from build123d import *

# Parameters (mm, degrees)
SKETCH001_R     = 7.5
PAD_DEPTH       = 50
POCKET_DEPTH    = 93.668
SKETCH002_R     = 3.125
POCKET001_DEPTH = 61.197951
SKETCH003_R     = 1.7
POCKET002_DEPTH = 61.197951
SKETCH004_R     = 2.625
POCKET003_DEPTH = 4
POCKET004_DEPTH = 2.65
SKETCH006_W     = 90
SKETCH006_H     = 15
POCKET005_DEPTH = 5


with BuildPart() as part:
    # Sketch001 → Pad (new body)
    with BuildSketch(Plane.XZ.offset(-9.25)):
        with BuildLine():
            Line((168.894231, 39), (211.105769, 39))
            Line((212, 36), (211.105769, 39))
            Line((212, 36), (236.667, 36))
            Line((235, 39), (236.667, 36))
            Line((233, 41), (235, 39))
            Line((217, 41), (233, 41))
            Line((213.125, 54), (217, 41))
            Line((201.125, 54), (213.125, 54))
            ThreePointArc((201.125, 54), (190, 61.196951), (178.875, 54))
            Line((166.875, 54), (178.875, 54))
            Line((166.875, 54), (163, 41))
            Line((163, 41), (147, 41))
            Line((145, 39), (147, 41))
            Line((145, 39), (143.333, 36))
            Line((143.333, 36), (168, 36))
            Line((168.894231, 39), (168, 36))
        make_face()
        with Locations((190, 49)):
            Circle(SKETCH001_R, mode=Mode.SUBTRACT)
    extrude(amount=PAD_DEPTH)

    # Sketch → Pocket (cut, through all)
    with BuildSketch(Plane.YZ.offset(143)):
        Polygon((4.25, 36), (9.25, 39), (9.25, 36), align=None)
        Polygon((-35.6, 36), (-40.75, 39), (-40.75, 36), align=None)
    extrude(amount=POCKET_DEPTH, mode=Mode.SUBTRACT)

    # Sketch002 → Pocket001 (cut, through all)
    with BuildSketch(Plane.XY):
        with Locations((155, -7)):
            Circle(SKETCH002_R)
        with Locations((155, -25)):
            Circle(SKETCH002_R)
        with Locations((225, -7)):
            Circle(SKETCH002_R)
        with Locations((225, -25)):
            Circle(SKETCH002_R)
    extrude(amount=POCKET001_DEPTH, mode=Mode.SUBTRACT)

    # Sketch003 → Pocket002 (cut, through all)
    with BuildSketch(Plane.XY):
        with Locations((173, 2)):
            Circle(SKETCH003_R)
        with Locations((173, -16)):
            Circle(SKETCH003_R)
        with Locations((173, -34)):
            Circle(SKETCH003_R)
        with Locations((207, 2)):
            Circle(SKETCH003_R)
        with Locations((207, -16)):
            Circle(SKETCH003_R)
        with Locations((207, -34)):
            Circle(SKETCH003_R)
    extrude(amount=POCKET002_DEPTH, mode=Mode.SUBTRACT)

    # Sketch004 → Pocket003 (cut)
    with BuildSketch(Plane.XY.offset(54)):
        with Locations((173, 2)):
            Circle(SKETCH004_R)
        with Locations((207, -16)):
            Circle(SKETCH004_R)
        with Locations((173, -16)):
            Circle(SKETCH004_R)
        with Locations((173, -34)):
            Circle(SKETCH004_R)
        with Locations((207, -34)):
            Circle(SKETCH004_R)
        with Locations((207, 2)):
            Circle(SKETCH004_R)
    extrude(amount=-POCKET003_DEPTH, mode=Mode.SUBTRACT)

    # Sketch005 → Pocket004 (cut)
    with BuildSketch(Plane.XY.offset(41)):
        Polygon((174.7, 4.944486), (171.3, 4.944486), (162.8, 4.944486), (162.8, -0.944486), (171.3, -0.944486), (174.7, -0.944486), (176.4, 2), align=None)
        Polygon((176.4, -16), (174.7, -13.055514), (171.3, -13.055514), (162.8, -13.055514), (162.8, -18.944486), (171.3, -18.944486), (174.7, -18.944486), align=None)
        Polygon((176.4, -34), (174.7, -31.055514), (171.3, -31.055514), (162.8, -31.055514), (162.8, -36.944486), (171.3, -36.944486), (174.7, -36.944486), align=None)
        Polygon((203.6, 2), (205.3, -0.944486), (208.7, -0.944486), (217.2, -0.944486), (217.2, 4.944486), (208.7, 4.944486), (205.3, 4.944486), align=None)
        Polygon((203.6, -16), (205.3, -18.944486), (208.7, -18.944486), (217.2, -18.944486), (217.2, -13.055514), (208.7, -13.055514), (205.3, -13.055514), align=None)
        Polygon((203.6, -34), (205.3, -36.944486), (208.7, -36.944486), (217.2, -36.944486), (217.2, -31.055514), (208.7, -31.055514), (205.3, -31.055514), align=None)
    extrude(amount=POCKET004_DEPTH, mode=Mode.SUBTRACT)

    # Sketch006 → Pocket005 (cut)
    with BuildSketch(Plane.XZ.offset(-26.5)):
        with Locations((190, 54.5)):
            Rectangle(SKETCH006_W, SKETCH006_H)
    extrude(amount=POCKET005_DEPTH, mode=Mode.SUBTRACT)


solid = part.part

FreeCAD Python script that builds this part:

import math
import FreeCAD as App
import Part
import Sketcher

V = App.Vector
Q = App.Units.Quantity


def add_polygon(sketch, points):
    """Adds a closed chain of lines whose ends are joined by coincident constraints."""
    first, n = sketch.GeometryCount, len(points)
    for a, b in zip(points, points[1:] + points[:1]):
        sketch.addGeometry(Part.LineSegment(App.Vector(*a, 0), App.Vector(*b, 0)), False)
    for i in range(n):
        sketch.addConstraint(Sketcher.Constraint("Coincident", first + i, 2, first + (i + 1) % n, 1))

doc = App.newDocument("Part")
body = doc.addObject("PartDesign::Body", "Body")

# Sketch on XZ plane
sketch1 = body.newObject("Sketcher::SketchObject", "Sketch")
sketch1.AttachmentSupport = (doc.getObject("XZ_Plane"), [""])
sketch1.MapMode = "FlatFace"
sketch1.AttachmentOffset = App.Placement(V(0, 0, -9.25), App.Rotation())
sketch1.addGeometry([
    Part.LineSegment(V(168.9, 39, 0), V(211.1, 39, 0)),  # 0
    Part.LineSegment(V(211.1, 39, 0), V(212, 36, 0)),  # 1
    Part.LineSegment(V(212, 36, 0), V(236.7, 36, 0)),  # 2
    Part.LineSegment(V(236.7, 36, 0), V(235, 39, 0)),  # 3
    Part.LineSegment(V(235, 39, 0), V(233, 41, 0)),  # 4
    Part.LineSegment(V(233, 41, 0), V(217, 41, 0)),  # 5
    Part.LineSegment(V(217, 41, 0), V(213.1, 54, 0)),  # 6
    Part.LineSegment(V(213.1, 54, 0), V(201.1, 54, 0)),  # 7
    Part.ArcOfCircle(Part.Circle(V(190, 49, 0), V(0, 0, 1), 12.2), math.radians(24), math.radians(156)),  # 8
    Part.LineSegment(V(178.9, 54, 0), V(166.9, 54, 0)),  # 9
    Part.LineSegment(V(166.9, 54, 0), V(163, 41, 0)),  # 10
    Part.LineSegment(V(163, 41, 0), V(147, 41, 0)),  # 11
    Part.LineSegment(V(147, 41, 0), V(145, 39, 0)),  # 12
    Part.LineSegment(V(145, 39, 0), V(143.3, 36, 0)),  # 13
    Part.LineSegment(V(143.3, 36, 0), V(168, 36, 0)),  # 14
    Part.LineSegment(V(168, 36, 0), V(168.9, 39, 0)),  # 15
    Part.Circle(V(190, 49, 0), V(0, 0, 1), 7.5),  # 16
], False)
sketch1.addConstraint([
    Sketcher.Constraint("Coincident", 0, 2, 1, 1),
    Sketcher.Constraint("Coincident", 1, 2, 2, 1),
    Sketcher.Constraint("Coincident", 2, 2, 3, 1),
    Sketcher.Constraint("Coincident", 3, 2, 4, 1),
    Sketcher.Constraint("Coincident", 4, 2, 5, 1),
    Sketcher.Constraint("Coincident", 5, 2, 6, 1),
    Sketcher.Constraint("Coincident", 6, 2, 7, 1),
    Sketcher.Constraint("Coincident", 7, 2, 8, 1),
    Sketcher.Constraint("Coincident", 8, 2, 9, 1),
    Sketcher.Constraint("Coincident", 9, 2, 10, 1),
    Sketcher.Constraint("Coincident", 10, 2, 11, 1),
    Sketcher.Constraint("Coincident", 11, 2, 12, 1),
    Sketcher.Constraint("Coincident", 12, 2, 13, 1),
    Sketcher.Constraint("Coincident", 13, 2, 14, 1),
    Sketcher.Constraint("Coincident", 14, 2, 15, 1),
    Sketcher.Constraint("Coincident", 15, 2, 0, 1),
    Sketcher.Constraint("Horizontal", 0),
    Sketcher.Constraint("Horizontal", 2),
    Sketcher.Constraint("Horizontal", 5),
    Sketcher.Constraint("Horizontal", 7),
    Sketcher.Constraint("Horizontal", 9),
    Sketcher.Constraint("Horizontal", 11),
    Sketcher.Constraint("Horizontal", 14),
    Sketcher.Constraint("Coincident", 16, 3, 8, 3),
    Sketcher.Constraint("Parallel", 1, 6),
    Sketcher.Constraint("Perpendicular", 4, 12),
    Sketcher.Constraint("Parallel", 10, 15),
    Sketcher.Constraint("Horizontal", 0, 2, 3, 2),
    Sketcher.Constraint("Horizontal", 7, 2, 8, 2),
    Sketcher.Constraint("Horizontal", 5, 2, 10, 2),
    Sketcher.Constraint("Horizontal", 3, 2, 12, 2),
    Sketcher.Constraint("Horizontal", 2, 2, 13, 2),
    Sketcher.Constraint("Equal", 7, 9),
    Sketcher.Constraint("Equal", 5, 11),
    Sketcher.Constraint("Equal", 2, 14),
    Sketcher.Constraint("Equal", 6, 10),
    Sketcher.Constraint("Equal", 4, 12),
    Sketcher.Constraint("Equal", 3, 13),
    Sketcher.Constraint("Diameter", 16, Q("15 mm")),
    Sketcher.Constraint("DistanceX", 5, 2, 5, 1, Q("16 mm")),
    Sketcher.Constraint("DistanceX", 7, 2, 7, 1, Q("12 mm")),
    Sketcher.Constraint("DistanceX", -1, 1, 8, 3, Q("190 mm")),
    Sketcher.Constraint("DistanceY", -1, 1, 8, 3, Q("48.999999 mm")),
    Sketcher.Constraint("DistanceY", -1, 1, 0, 2, Q("39 mm")),
    Sketcher.Constraint("DistanceX", -1, 1, 1, 2, Q("212 mm")),
    Sketcher.Constraint("DistanceY", -1, 1, 1, 2, Q("36 mm")),
    Sketcher.Constraint("DistanceX", -1, 1, 3, 2, Q("235 mm")),
    Sketcher.Constraint("DistanceX", -1, 1, 4, 2, Q("233 mm")),
    Sketcher.Constraint("DistanceY", -1, 1, 6, 2, Q("54 mm")),
    Sketcher.Constraint("DistanceX", 2, 1, 2, 2, Q("24.667 mm")),
    Sketcher.Constraint("Radius", 8, Q("12.196952 mm")),
])
pad1 = body.newObject("PartDesign::Pad", "Pad")
pad1.Profile = sketch1
pad1.Length = 50

# Sketch on YZ plane
sketch2 = body.newObject("Sketcher::SketchObject", "Sketch001")
sketch2.AttachmentSupport = (doc.getObject("YZ_Plane"), [""])
sketch2.MapMode = "FlatFace"
sketch2.AttachmentOffset = App.Placement(V(0, 0, 143), App.Rotation())
add_polygon(sketch2, [(9.2, 39), (4.2, 36), (9.2, 36)])  # lines 0-2
add_polygon(sketch2, [(-35.6, 36), (-40.8, 39), (-40.8, 36)])  # lines 3-5
sketch2.addConstraint([
    Sketcher.Constraint("Horizontal", 1),
    Sketcher.Constraint("Vertical", 2),
    Sketcher.Constraint("Vertical", 4),
    Sketcher.Constraint("Horizontal", 5),
    Sketcher.Constraint("Horizontal", 2, 2, 3, 2),
    Sketcher.Constraint("Horizontal", 1, 2, 4, 2),
    Sketcher.Constraint("DistanceX", 1, 1, 1, 2, Q("5 mm")),
    Sketcher.Constraint("DistanceY", 2, 1, 2, 2, Q("3 mm")),
    Sketcher.Constraint("DistanceY", -1, 1, 0, 2, Q("36 mm")),
    Sketcher.Constraint("DistanceX", 3, 2, 0, 2, Q("45 mm")),
    Sketcher.Constraint("DistanceX", 5, 1, 5, 2, Q("5.15 mm")),
    Sketcher.Constraint("DistanceX", 5, 2, -1, 1, Q("35.6 mm")),
])
pocket1 = body.newObject("PartDesign::Pocket", "Pocket")
pocket1.Profile = sketch2
pocket1.Type = "ThroughAll"
pocket1.Reversed = True

# Sketch on XY plane
sketch3 = body.newObject("Sketcher::SketchObject", "Sketch002")
sketch3.AttachmentSupport = (doc.getObject("XY_Plane"), [""])
sketch3.MapMode = "FlatFace"
sketch3.addGeometry([
    Part.Circle(V(155, -7, 0), V(0, 0, 1), 3.1),
    Part.Circle(V(155, -25, 0), V(0, 0, 1), 3.1),
    Part.Circle(V(225, -7, 0), V(0, 0, 1), 3.1),
    Part.Circle(V(225, -25, 0), V(0, 0, 1), 3.1),
], False)
sketch3.addConstraint([
    Sketcher.Constraint("Equal", 0, 1),
    Sketcher.Constraint("Equal", 1, 2),
    Sketcher.Constraint("Equal", 2, 3),
    Sketcher.Constraint("Horizontal", 0, 3, 2, 3),
    Sketcher.Constraint("Horizontal", 1, 3, 3, 3),
    Sketcher.Constraint("Vertical", 0, 3, 1, 3),
    Sketcher.Constraint("Vertical", 2, 3, 3, 3),
    Sketcher.Constraint("Diameter", 0, Q("6.25 mm")),
    Sketcher.Constraint("DistanceX", -1, 1, 0, 3, Q("155 mm")),
    Sketcher.Constraint("DistanceY", 0, 3, -1, 1, Q("7 mm")),
    Sketcher.Constraint("DistanceY", 1, 3, -1, 1, Q("25 mm")),
    Sketcher.Constraint("DistanceX", -1, 1, 2, 3, Q("225 mm")),
])
pocket2 = body.newObject("PartDesign::Pocket", "Pocket001")
pocket2.Profile = sketch3
pocket2.Type = "ThroughAll"
pocket2.Reversed = True

# Sketch on XY plane
sketch4 = body.newObject("Sketcher::SketchObject", "Sketch003")
sketch4.AttachmentSupport = (doc.getObject("XY_Plane"), [""])
sketch4.MapMode = "FlatFace"
sketch4.addGeometry([
    Part.Circle(V(173, 2, 0), V(0, 0, 1), 1.7),  # 0
    Part.Circle(V(173, -16, 0), V(0, 0, 1), 1.7),  # 1
    Part.Circle(V(173, -34, 0), V(0, 0, 1), 1.7),  # 2
    Part.Circle(V(207, 2, 0), V(0, 0, 1), 1.7),  # 3
    Part.Circle(V(207, -16, 0), V(0, 0, 1), 1.7),  # 4
    Part.Circle(V(207, -34, 0), V(0, 0, 1), 1.7),  # 5
], False)
sketch4.addConstraint([
    Sketcher.Constraint("Equal", 0, 1),
    Sketcher.Constraint("Equal", 1, 2),
    Sketcher.Constraint("Equal", 2, 3),
    Sketcher.Constraint("Equal", 3, 4),
    Sketcher.Constraint("Equal", 4, 5),
    Sketcher.Constraint("Horizontal", 0, 3, 3, 3),
    Sketcher.Constraint("Horizontal", 1, 3, 4, 3),
    Sketcher.Constraint("Horizontal", 2, 3, 5, 3),
    Sketcher.Constraint("Vertical", 0, 3, 1, 3),
    Sketcher.Constraint("Vertical", 1, 3, 2, 3),
    Sketcher.Constraint("Vertical", 3, 3, 4, 3),
    Sketcher.Constraint("Vertical", 4, 3, 5, 3),
    Sketcher.Constraint("Diameter", 0, Q("3.4 mm")),
    Sketcher.Constraint("DistanceX", -1, 1, 0, 3, Q("173 mm")),
    Sketcher.Constraint("DistanceY", -1, 1, 0, 3, Q("2 mm")),
    Sketcher.Constraint("DistanceY", 1, 3, -1, 1, Q("16 mm")),
    Sketcher.Constraint("DistanceY", 2, 3, -1, 1, Q("34 mm")),
    Sketcher.Constraint("DistanceX", -1, 1, 3, 3, Q("207 mm")),
])
pocket3 = body.newObject("PartDesign::Pocket", "Pocket002")
pocket3.Profile = sketch4
pocket3.Type = "ThroughAll"
pocket3.Reversed = True

# Sketch on XY plane
sketch5 = body.newObject("Sketcher::SketchObject", "Sketch004")
sketch5.AttachmentSupport = (doc.getObject("XY_Plane"), [""])
sketch5.MapMode = "FlatFace"
sketch5.AttachmentOffset = App.Placement(V(0, 0, 54), App.Rotation())
sketch5.addGeometry([
    Part.Circle(V(173, 2, 0), V(0, 0, 1), 2.6),  # 0
    Part.Circle(V(207, -16, 0), V(0, 0, 1), 2.6),  # 1
    Part.Circle(V(173, -16, 0), V(0, 0, 1), 2.6),  # 2
    Part.Circle(V(173, -34, 0), V(0, 0, 1), 2.6),  # 3
    Part.Circle(V(207, -34, 0), V(0, 0, 1), 2.6),  # 4
    Part.Circle(V(207, 2, 0), V(0, 0, 1), 2.6),  # 5
], False)
sketch5.addConstraint([
    Sketcher.Constraint("Equal", 0, 1),
    Sketcher.Constraint("Equal", 1, 2),
    Sketcher.Constraint("Equal", 2, 3),
    Sketcher.Constraint("Equal", 3, 4),
    Sketcher.Constraint("Equal", 4, 5),
    Sketcher.Constraint("Horizontal", 1, 3, 2, 3),
    Sketcher.Constraint("Horizontal", 3, 3, 4, 3),
    Sketcher.Constraint("Horizontal", 0, 3, 5, 3),
    Sketcher.Constraint("Vertical", 0, 3, 2, 3),
    Sketcher.Constraint("Vertical", 2, 3, 3, 3),
    Sketcher.Constraint("Vertical", 1, 3, 4, 3),
    Sketcher.Constraint("Vertical", 4, 3, 5, 3),
    Sketcher.Constraint("Diameter", 0, Q("5.25 mm")),
    Sketcher.Constraint("DistanceX", -1, 1, 0, 3, Q("173 mm")),
    Sketcher.Constraint("DistanceY", -1, 1, 0, 3, Q("2 mm")),
    Sketcher.Constraint("DistanceX", -1, 1, 1, 3, Q("207 mm")),
    Sketcher.Constraint("DistanceY", 1, 3, -1, 1, Q("16 mm")),
    Sketcher.Constraint("DistanceY", 3, 3, -1, 1, Q("34 mm")),
])
pocket4 = body.newObject("PartDesign::Pocket", "Pocket003")
pocket4.Profile = sketch5
pocket4.Length = 4

# Sketch on XY plane
sketch6 = body.newObject("Sketcher::SketchObject", "Sketch005")
sketch6.AttachmentSupport = (doc.getObject("XY_Plane"), [""])
sketch6.MapMode = "FlatFace"
sketch6.AttachmentOffset = App.Placement(V(0, 0, 41), App.Rotation())
add_polygon(sketch6, [(174.7, 4.9), (162.8, 4.9), (162.8, -0.9), (174.7, -0.9), (176.4, 2)])  # lines 0-4
add_polygon(sketch6, [(176.4, -16), (174.7, -13.1), (162.8, -13.1), (162.8, -18.9), (174.7, -18.9)])  # lines 5-9
add_polygon(sketch6, [(176.4, -34), (174.7, -31.1), (162.8, -31.1), (162.8, -36.9), (174.7, -36.9)])  # lines 10-14
add_polygon(sketch6, [(203.6, 2), (205.3, -0.9), (217.2, -0.9), (217.2, 4.9), (205.3, 4.9)])  # lines 15-19
add_polygon(sketch6, [(203.6, -16), (205.3, -18.9), (217.2, -18.9), (217.2, -13.1), (205.3, -13.1)])  # lines 20-24
add_polygon(sketch6, [(203.6, -34), (205.3, -36.9), (217.2, -36.9), (217.2, -31.1), (205.3, -31.1)])  # lines 25-29
sketch6.addConstraint([
    Sketcher.Constraint("Horizontal", 0),
    Sketcher.Constraint("Vertical", 1),
    Sketcher.Constraint("Horizontal", 2),
    Sketcher.Constraint("Horizontal", 6),
    Sketcher.Constraint("Vertical", 7),
    Sketcher.Constraint("Horizontal", 8),
    Sketcher.Constraint("Horizontal", 11),
    Sketcher.Constraint("Vertical", 12),
    Sketcher.Constraint("Horizontal", 13),
    Sketcher.Constraint("Horizontal", 16),
    Sketcher.Constraint("Vertical", 17),
    Sketcher.Constraint("Horizontal", 18),
    Sketcher.Constraint("Horizontal", 21),
    Sketcher.Constraint("Vertical", 22),
    Sketcher.Constraint("Horizontal", 23),
    Sketcher.Constraint("Horizontal", 26),
    Sketcher.Constraint("Vertical", 27),
    Sketcher.Constraint("Horizontal", 28),
    Sketcher.Constraint("Parallel", 4, 5),
    Sketcher.Constraint("Parallel", 3, 9),
    Sketcher.Constraint("Parallel", 5, 10),
    Sketcher.Constraint("Parallel", 9, 14),
    Sketcher.Constraint("Parallel", 10, 15),
    Sketcher.Constraint("Parallel", 14, 19),
    Sketcher.Constraint("Parallel", 15, 20),
    Sketcher.Constraint("Parallel", 19, 24),
    Sketcher.Constraint("Parallel", 20, 25),
    Sketcher.Constraint("Parallel", 24, 29),
    Sketcher.Constraint("Horizontal", 2, 2, 15, 2),
    Sketcher.Constraint("Horizontal", 4, 2, 17, 2),
    Sketcher.Constraint("Horizontal", 3, 2, 19, 2),
    Sketcher.Constraint("Horizontal", 8, 2, 20, 2),
    Sketcher.Constraint("Horizontal", 6, 2, 22, 2),
    Sketcher.Constraint("Horizontal", 9, 2, 24, 2),
    Sketcher.Constraint("Horizontal", 13, 2, 25, 2),
    Sketcher.Constraint("Horizontal", 11, 2, 27, 2),
    Sketcher.Constraint("Horizontal", 14, 2, 29, 2),
    Sketcher.Constraint("Vertical", 2, 2, 4, 2),
    Sketcher.Constraint("Vertical", 4, 2, 5, 2),
    Sketcher.Constraint("Vertical", 1, 2, 6, 2),
    Sketcher.Constraint("Vertical", 5, 2, 8, 2),
    Sketcher.Constraint("Vertical", 3, 2, 9, 2),
    Sketcher.Constraint("Vertical", 8, 2, 10, 2),
    Sketcher.Constraint("Vertical", 7, 2, 11, 2),
    Sketcher.Constraint("Vertical", 10, 2, 13, 2),
    Sketcher.Constraint("Vertical", 9, 2, 14, 2),
    Sketcher.Constraint("Vertical", 15, 2, 18, 2),
    Sketcher.Constraint("Vertical", 18, 2, 20, 2),
    Sketcher.Constraint("Vertical", 17, 2, 21, 2),
    Sketcher.Constraint("Vertical", 23, 2, 25, 2),
    Sketcher.Constraint("Vertical", 22, 2, 26, 2),
    Sketcher.Constraint("Equal", 13, 16),
    Sketcher.Constraint("Angle", 3, Q("59.999997 deg")),
    Sketcher.Constraint("DistanceX", 0, 2, 0, 1, Q("11.9 mm")),
    Sketcher.Constraint("DistanceY", -1, 1, 3, 2, Q("2 mm")),
    Sketcher.Constraint("DistanceY", 9, 2, -1, 1, Q("16 mm")),
    Sketcher.Constraint("DistanceY", 14, 2, -1, 1, Q("34 mm")),
    Sketcher.Constraint("Distance", 3, Q("3.4 mm")),
    Sketcher.Constraint("DistanceX", -1, 1, 0, 2, Q("162.8 mm")),
    Sketcher.Constraint("DistanceX", -1, 1, 15, 2, Q("205.3 mm")),
])
pocket5 = body.newObject("PartDesign::Pocket", "Pocket004")
pocket5.Profile = sketch6
pocket5.Length = 2.65
pocket5.Reversed = True

# Sketch on XZ plane
sketch7 = body.newObject("Sketcher::SketchObject", "Sketch006")
sketch7.AttachmentSupport = (doc.getObject("XZ_Plane"), [""])
sketch7.MapMode = "FlatFace"
sketch7.AttachmentOffset = App.Placement(V(0, 0, -26.5), App.Rotation())
add_polygon(sketch7, [(145, 62), (145, 47), (235, 47), (235, 62)])  # lines 0-3
sketch7.addConstraint([
    Sketcher.Constraint("Vertical", 0),
    Sketcher.Constraint("Horizontal", 1),
    Sketcher.Constraint("Vertical", 2),
    Sketcher.Constraint("Horizontal", 3),
    Sketcher.Constraint("DistanceX", 1, 1, 1, 2, Q("90 mm")),
    Sketcher.Constraint("DistanceY", 0, 2, 0, 1, Q("15 mm")),
    Sketcher.Constraint("DistanceX", -1, 1, 0, 2, Q("145 mm")),
    Sketcher.Constraint("DistanceY", -1, 1, 0, 2, Q("47 mm")),
])
pocket6 = body.newObject("PartDesign::Pocket", "Pocket005")
pocket6.Profile = sketch7
pocket6.Length = 5
pocket6.Reversed = True

doc.recompute()
